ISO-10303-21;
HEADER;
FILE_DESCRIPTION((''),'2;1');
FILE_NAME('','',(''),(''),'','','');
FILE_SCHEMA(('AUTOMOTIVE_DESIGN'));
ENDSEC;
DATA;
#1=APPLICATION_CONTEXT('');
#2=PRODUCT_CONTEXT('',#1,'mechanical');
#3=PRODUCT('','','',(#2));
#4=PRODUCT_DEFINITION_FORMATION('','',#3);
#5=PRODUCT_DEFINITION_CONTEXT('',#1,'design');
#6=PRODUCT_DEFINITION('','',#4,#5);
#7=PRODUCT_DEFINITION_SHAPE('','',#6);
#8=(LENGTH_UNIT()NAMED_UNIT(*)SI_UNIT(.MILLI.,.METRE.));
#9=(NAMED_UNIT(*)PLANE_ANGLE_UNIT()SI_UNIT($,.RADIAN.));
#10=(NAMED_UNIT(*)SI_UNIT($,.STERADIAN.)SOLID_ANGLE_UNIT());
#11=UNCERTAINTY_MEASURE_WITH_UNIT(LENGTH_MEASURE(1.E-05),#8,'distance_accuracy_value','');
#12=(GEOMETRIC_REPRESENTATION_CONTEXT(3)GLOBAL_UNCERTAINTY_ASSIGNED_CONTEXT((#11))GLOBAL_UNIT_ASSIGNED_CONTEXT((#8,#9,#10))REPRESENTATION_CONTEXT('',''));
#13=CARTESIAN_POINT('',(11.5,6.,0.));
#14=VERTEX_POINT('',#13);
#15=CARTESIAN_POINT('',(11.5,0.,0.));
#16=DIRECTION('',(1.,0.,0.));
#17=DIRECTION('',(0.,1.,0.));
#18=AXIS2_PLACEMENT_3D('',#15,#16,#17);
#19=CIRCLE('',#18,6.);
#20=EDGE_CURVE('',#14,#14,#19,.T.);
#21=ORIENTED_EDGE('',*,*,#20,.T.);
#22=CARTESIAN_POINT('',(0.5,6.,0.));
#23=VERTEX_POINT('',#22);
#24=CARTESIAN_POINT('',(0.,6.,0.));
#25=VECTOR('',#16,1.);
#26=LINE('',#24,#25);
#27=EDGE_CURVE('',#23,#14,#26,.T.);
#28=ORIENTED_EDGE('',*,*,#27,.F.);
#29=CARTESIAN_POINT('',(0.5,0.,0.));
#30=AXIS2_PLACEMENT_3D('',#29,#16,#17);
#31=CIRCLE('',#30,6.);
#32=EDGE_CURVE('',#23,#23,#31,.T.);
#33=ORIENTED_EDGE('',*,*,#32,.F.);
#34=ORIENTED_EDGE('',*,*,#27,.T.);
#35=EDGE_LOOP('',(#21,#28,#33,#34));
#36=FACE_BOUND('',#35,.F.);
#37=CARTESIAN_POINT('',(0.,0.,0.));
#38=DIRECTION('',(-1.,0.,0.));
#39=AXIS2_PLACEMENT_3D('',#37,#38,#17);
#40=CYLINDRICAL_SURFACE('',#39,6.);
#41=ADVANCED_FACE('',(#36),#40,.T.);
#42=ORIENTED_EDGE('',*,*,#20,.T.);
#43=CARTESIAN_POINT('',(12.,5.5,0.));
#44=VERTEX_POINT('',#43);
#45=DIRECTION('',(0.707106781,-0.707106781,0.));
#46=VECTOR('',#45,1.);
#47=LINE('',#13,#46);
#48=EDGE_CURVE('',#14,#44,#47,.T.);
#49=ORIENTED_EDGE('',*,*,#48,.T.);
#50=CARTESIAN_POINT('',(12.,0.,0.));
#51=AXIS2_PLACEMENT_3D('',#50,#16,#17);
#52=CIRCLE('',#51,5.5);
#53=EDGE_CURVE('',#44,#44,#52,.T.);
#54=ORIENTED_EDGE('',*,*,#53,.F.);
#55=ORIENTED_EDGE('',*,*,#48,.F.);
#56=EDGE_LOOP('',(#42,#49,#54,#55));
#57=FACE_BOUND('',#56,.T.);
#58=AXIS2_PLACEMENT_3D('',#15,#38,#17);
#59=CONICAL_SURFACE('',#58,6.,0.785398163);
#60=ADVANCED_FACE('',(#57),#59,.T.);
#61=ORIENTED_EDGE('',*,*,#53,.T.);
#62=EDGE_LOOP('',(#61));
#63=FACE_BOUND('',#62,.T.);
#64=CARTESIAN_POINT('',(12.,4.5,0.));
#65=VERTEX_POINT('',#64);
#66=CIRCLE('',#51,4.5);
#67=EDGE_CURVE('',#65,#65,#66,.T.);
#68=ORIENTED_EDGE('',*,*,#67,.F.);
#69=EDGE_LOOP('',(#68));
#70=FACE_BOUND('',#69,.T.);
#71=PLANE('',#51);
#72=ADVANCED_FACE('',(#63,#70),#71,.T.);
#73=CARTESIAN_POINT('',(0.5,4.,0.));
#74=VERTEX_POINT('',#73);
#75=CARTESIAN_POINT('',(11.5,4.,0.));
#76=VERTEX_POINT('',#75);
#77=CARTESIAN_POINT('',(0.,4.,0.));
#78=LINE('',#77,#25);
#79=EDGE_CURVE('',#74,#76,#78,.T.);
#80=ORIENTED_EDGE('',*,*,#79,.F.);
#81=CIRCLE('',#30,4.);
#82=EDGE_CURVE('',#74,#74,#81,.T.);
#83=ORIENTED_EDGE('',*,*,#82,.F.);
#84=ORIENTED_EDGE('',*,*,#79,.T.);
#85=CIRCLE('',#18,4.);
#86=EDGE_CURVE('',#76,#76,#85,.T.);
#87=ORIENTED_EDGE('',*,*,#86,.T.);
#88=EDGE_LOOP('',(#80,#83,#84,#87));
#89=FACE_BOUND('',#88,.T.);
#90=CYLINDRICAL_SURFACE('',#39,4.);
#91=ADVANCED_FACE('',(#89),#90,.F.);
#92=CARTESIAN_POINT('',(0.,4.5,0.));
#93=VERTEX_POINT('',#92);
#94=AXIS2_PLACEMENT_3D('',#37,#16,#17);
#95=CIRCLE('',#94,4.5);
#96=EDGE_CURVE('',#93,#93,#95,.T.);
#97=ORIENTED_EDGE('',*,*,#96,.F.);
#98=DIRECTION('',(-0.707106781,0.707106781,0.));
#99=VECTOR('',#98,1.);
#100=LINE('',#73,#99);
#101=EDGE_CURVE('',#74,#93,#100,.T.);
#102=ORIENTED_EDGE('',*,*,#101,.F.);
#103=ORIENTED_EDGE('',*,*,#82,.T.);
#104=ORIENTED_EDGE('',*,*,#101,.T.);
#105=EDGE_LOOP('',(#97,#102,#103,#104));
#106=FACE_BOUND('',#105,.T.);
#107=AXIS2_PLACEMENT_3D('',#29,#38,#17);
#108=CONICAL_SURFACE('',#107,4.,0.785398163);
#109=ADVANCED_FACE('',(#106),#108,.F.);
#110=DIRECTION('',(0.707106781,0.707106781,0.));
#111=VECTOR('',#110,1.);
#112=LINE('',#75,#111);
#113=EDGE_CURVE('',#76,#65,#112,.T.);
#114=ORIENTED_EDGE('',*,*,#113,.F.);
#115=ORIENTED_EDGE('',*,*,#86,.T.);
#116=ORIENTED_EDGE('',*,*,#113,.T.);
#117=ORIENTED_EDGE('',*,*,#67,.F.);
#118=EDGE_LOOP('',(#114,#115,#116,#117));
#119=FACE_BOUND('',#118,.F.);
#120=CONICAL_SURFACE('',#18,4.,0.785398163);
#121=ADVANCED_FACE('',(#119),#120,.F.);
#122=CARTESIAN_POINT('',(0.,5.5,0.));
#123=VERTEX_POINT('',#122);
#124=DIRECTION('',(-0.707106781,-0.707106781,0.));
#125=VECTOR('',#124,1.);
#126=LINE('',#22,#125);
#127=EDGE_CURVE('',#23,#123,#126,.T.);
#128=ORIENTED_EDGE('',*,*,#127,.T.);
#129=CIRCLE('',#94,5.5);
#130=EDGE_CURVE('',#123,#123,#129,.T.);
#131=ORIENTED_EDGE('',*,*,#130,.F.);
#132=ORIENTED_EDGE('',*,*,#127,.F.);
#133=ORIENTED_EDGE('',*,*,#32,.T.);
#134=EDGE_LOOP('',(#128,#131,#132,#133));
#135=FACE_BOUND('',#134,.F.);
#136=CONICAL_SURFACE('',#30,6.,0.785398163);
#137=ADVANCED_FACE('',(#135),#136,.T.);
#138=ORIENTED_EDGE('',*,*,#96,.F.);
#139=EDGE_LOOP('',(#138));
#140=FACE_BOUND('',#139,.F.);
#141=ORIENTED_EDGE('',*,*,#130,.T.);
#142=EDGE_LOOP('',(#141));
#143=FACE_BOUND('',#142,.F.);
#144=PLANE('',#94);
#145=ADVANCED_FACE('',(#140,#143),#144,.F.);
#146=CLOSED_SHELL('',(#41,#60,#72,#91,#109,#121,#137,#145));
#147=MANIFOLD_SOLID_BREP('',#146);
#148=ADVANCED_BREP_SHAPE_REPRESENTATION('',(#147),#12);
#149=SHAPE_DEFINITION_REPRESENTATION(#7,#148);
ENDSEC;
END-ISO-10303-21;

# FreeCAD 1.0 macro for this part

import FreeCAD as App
import Part
import Sketcher
from FreeCAD import Vector


def edges_at(feature, points):
    """Names of the edges that pass closest to the given points."""
    edges = feature.Shape.Edges
    near = lambda p: min(range(len(edges)), key=lambda i: edges[i].distToShape(Part.Vertex(*p))[0])
    return sorted({f"Edge{near(p) + 1}" for p in points})

doc = App.newDocument("Part")
params = doc.addObject("Spreadsheet::Sheet", "Params")
for row, (alias, value) in enumerate([
    ("sketch1_diameter", "12 mm"),
    ("sketch1_diameter2", "8 mm"),
    ("pad1_length", "12 mm"),
    ("chamfer_size", "0.5 mm"),
], start=1):
    params.set(f"A{row}", alias)
    params.set(f"B{row}", "=" + value)
    params.setAlias(f"B{row}", alias)

body = doc.addObject("PartDesign::Body", "Body")

# Sketch on YZ plane
sketch1 = doc.addObject("Sketcher::SketchObject", "Sketch")
body.addObject(sketch1)
sketch1.AttachmentSupport = (doc.YZ_Plane, [""])
sketch1.MapMode = "FlatFace"
sketch1.addGeometry([
    Part.Circle(Vector(0, 0, 0), Vector(0, 0, 1), 6),
    Part.Circle(Vector(0, 0, 0), Vector(0, 0, 1), 4),
], False)
sketch1.addConstraint([
    Sketcher.Constraint("Coincident", 0, 3, -1, 1),
    Sketcher.Constraint("Coincident", 1, 3, -1, 1),
    Sketcher.Constraint("Diameter", 0, 12.0),
    Sketcher.Constraint("Diameter", 1, 8.0),
])
sketch1.setExpression("Constraints[2]", "Params.sketch1_diameter")
sketch1.setExpression("Constraints[3]", "Params.sketch1_diameter2")
pad1 = doc.addObject("PartDesign::Pad", "Pad")
body.addObject(pad1)
pad1.Profile = sketch1
pad1.setExpression("Length", "Params.pad1_length")
doc.recompute()

chamfer = doc.addObject("PartDesign::Chamfer", "Chamfer")
body.addObject(chamfer)
chamfer.Base = (pad1, edges_at(pad1, [
    (12, -6, 0),
    (12, -4, 0),
    (0, -6, 0),
    (0, -4, 0),
]))
chamfer.setExpression("Size", "Params.chamfer_size")

doc.recompute()
